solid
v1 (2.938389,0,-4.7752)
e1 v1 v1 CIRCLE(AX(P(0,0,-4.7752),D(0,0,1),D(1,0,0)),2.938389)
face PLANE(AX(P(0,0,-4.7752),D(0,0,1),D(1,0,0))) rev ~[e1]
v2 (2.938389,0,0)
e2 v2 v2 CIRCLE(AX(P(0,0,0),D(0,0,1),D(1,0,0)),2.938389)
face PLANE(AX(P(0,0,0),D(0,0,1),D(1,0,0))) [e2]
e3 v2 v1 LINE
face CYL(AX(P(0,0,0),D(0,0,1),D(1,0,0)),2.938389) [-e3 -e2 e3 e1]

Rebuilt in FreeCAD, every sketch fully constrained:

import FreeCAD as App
import Part
import Sketcher
from FreeCAD import Vector
Q = App.Units.Quantity

doc = App.newDocument("Part")
body = doc.addObject("PartDesign::Body", "Body")

# Sketch on XY plane
sketch1 = doc.addObject("Sketcher::SketchObject", "Sketch")
body.addObject(sketch1)
sketch1.AttachmentSupport = (doc.XY_Plane, [""])
sketch1.MapMode = "FlatFace"
sketch1.addGeometry([
    Part.Circle(Vector(0, 0, 0), Vector(0, 0, 1), 2.033883),
    Part.Circle(Vector(0, 0, 0), Vector(0, 0, 1), 1.622175),
], False)
sketch1.addConstraint([
    Sketcher.Constraint("Coincident", 0, 3, -1, 1),
    Sketcher.Constraint("Coincident", 1, 3, -1, 1),
    Sketcher.Constraint("Diameter", 1, Q("3.24435 mm")),
    Sketcher.Constraint("Diameter", 0, Q("4.067766 mm")),
])
pad1 = doc.addObject("PartDesign::Pad", "Pad")
body.addObject(pad1)
pad1.Profile = sketch1
pad1.Length = Q("0.05 in")
pad1.Reversed = True

# Sketch on XY plane
sketch2 = doc.addObject("Sketcher::SketchObject", "Sketch001")
body.addObject(sketch2)
sketch2.AttachmentSupport = (doc.XY_Plane, [""])
sketch2.MapMode = "FlatFace"
sketch2.addGeometry(Part.Circle(Vector(0, 0, 0), Vector(0, 0, 1), 2.938389), False)
sketch2.addConstraint([
    Sketcher.Constraint("Coincident", 0, 3, -1, 1),
    Sketcher.Constraint("Diameter", 0, Q("5.876778 mm")),
])
pad2 = doc.addObject("PartDesign::Pad", "Pad001")
body.addObject(pad2)
pad2.Profile = sketch2
pad2.Length = Q("0.188 in")
pad2.Reversed = True

doc.recompute()
